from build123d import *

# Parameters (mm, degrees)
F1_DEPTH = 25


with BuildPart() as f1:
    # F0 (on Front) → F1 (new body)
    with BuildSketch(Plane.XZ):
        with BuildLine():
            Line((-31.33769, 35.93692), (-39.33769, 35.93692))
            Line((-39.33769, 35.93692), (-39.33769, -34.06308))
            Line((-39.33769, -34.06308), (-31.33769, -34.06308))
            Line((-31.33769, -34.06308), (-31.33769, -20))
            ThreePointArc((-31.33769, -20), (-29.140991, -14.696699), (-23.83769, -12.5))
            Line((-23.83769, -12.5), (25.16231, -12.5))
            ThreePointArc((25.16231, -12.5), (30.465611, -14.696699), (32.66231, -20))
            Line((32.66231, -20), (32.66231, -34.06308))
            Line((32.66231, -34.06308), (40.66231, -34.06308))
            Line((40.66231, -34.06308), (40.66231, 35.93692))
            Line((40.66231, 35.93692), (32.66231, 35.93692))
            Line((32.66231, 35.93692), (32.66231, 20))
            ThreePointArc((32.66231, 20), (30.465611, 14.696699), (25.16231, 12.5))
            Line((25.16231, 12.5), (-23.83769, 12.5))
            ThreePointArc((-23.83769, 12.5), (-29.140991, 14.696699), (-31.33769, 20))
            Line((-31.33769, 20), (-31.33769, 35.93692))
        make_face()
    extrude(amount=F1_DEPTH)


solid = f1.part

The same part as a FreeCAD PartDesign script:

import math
import FreeCAD as App
import Part
import Sketcher
Q = App.Units.Quantity

doc = App.newDocument("Part")
body = doc.addObject("PartDesign::Body", "Body")

# Sketch on XZ plane
sketch1 = body.newObject("Sketcher::SketchObject", "Sketch")
sketch1.AttachmentSupport = (doc.getObject("XZ_Plane"), [""])
sketch1.MapMode = "FlatFace"
sketch1.addGeometry([
    Part.LineSegment(App.Vector(-31, 36, 0), App.Vector(-39, 36, 0)),  # 0
    Part.LineSegment(App.Vector(-39, 36, 0), App.Vector(-39, -34, 0)),  # 1
    Part.LineSegment(App.Vector(-39, -34, 0), App.Vector(-31, -34, 0)),  # 2
    Part.LineSegment(App.Vector(-31, -34, 0), App.Vector(-31, -20, 0)),  # 3
    Part.ArcOfCircle(Part.Circle(App.Vector(-24, -20, 0), App.Vector(0, 0, 1), 7), math.radians(90), math.radians(180)),  # 4
    Part.LineSegment(App.Vector(-24, -12, 0), App.Vector(25, -12, 0)),  # 5
    Part.ArcOfCircle(Part.Circle(App.Vector(25, -20, 0), App.Vector(0, 0, 1), 7), math.radians(0), math.radians(90)),  # 6
    Part.LineSegment(App.Vector(33, -20, 0), App.Vector(33, -34, 0)),  # 7
    Part.LineSegment(App.Vector(33, -34, 0), App.Vector(41, -34, 0)),  # 8
    Part.LineSegment(App.Vector(41, -34, 0), App.Vector(41, 36, 0)),  # 9
    Part.LineSegment(App.Vector(41, 36, 0), App.Vector(33, 36, 0)),  # 10
    Part.LineSegment(App.Vector(33, 36, 0), App.Vector(33, 20, 0)),  # 11
    Part.ArcOfCircle(Part.Circle(App.Vector(25, 20, 0), App.Vector(0, 0, 1), 7), math.radians(-90), math.radians(0)),  # 12
    Part.LineSegment(App.Vector(25, 12, 0), App.Vector(-24, 12, 0)),  # 13
    Part.ArcOfCircle(Part.Circle(App.Vector(-24, 20, 0), App.Vector(0, 0, 1), 7), math.radians(180), math.radians(270)),  # 14
    Part.LineSegment(App.Vector(-31, 20, 0), App.Vector(-31, 36, 0)),  # 15
], False)
sketch1.addConstraint([
    Sketcher.Constraint("Coincident", 0, 2, 1, 1),
    Sketcher.Constraint("Coincident", 1, 2, 2, 1),
    Sketcher.Constraint("Coincident", 2, 2, 3, 1),
    Sketcher.Constraint("Tangent", 3, 2, 4, 2),
    Sketcher.Constraint("Tangent", 4, 1, 5, 1),
    Sketcher.Constraint("Tangent", 5, 2, 6, 2),
    Sketcher.Constraint("Tangent", 6, 1, 7, 1),
    Sketcher.Constraint("Coincident", 7, 2, 8, 1),
    Sketcher.Constraint("Coincident", 8, 2, 9, 1),
    Sketcher.Constraint("Coincident", 9, 2, 10, 1),
    Sketcher.Constraint("Coincident", 10, 2, 11, 1),
    Sketcher.Constraint("Tangent", 11, 2, 12, 2),
    Sketcher.Constraint("Tangent", 12, 1, 13, 1),
    Sketcher.Constraint("Tangent", 13, 2, 14, 2),
    Sketcher.Constraint("Tangent", 14, 1, 15, 1),
    Sketcher.Constraint("Coincident", 15, 2, 0, 1),
    Sketcher.Constraint("Horizontal", 0),
    Sketcher.Constraint("Vertical", 1),
    Sketcher.Constraint("Horizontal", 2),
    Sketcher.Constraint("Vertical", 3),
    Sketcher.Constraint("Horizontal", 5),
    Sketcher.Constraint("Vertical", 7),
    Sketcher.Constraint("Horizontal", 8),
    Sketcher.Constraint("Vertical", 9),
    Sketcher.Constraint("Horizontal", 10),
    Sketcher.Constraint("Vertical", 11),
    Sketcher.Constraint("Horizontal", 13),
    Sketcher.Constraint("Vertical", 15),
    Sketcher.Constraint("Equal", 4, 6),
    Sketcher.Constraint("Equal", 6, 12),
    Sketcher.Constraint("Equal", 12, 14),
    Sketcher.Constraint("Symmetric", 6, 3, 12, 3, -1),
    Sketcher.Constraint("Horizontal", 2, 2, 7, 2),
    Sketcher.Constraint("Horizontal", 0, 2, 9, 2),
    Sketcher.Constraint("Vertical", 4, 3, 14, 3),
    Sketcher.Constraint("Equal", 2, 8),
    Sketcher.Constraint("Radius", 4, Q("7.5 mm")),
    Sketcher.Constraint("DistanceX", 0, 2, 0, 1, Q("8 mm")),
    Sketcher.Constraint("DistanceX", 5, 1, 5, 2, Q("49 mm")),
    Sketcher.Constraint("DistanceY", 1, 2, 1, 1, Q("70 mm")),
    Sketcher.Constraint("DistanceY", 4, 3, -1, 1, Q("20 mm")),
    Sketcher.Constraint("DistanceY", 3, 1, 3, 2, Q("14.06308 mm")),
    Sketcher.Constraint("DistanceX", 4, 3, -1, 1, Q("23.83769 mm")),
])
pad1 = body.newObject("PartDesign::Pad", "Pad")
pad1.Profile = sketch1
pad1.Length = 25

doc.recompute()
